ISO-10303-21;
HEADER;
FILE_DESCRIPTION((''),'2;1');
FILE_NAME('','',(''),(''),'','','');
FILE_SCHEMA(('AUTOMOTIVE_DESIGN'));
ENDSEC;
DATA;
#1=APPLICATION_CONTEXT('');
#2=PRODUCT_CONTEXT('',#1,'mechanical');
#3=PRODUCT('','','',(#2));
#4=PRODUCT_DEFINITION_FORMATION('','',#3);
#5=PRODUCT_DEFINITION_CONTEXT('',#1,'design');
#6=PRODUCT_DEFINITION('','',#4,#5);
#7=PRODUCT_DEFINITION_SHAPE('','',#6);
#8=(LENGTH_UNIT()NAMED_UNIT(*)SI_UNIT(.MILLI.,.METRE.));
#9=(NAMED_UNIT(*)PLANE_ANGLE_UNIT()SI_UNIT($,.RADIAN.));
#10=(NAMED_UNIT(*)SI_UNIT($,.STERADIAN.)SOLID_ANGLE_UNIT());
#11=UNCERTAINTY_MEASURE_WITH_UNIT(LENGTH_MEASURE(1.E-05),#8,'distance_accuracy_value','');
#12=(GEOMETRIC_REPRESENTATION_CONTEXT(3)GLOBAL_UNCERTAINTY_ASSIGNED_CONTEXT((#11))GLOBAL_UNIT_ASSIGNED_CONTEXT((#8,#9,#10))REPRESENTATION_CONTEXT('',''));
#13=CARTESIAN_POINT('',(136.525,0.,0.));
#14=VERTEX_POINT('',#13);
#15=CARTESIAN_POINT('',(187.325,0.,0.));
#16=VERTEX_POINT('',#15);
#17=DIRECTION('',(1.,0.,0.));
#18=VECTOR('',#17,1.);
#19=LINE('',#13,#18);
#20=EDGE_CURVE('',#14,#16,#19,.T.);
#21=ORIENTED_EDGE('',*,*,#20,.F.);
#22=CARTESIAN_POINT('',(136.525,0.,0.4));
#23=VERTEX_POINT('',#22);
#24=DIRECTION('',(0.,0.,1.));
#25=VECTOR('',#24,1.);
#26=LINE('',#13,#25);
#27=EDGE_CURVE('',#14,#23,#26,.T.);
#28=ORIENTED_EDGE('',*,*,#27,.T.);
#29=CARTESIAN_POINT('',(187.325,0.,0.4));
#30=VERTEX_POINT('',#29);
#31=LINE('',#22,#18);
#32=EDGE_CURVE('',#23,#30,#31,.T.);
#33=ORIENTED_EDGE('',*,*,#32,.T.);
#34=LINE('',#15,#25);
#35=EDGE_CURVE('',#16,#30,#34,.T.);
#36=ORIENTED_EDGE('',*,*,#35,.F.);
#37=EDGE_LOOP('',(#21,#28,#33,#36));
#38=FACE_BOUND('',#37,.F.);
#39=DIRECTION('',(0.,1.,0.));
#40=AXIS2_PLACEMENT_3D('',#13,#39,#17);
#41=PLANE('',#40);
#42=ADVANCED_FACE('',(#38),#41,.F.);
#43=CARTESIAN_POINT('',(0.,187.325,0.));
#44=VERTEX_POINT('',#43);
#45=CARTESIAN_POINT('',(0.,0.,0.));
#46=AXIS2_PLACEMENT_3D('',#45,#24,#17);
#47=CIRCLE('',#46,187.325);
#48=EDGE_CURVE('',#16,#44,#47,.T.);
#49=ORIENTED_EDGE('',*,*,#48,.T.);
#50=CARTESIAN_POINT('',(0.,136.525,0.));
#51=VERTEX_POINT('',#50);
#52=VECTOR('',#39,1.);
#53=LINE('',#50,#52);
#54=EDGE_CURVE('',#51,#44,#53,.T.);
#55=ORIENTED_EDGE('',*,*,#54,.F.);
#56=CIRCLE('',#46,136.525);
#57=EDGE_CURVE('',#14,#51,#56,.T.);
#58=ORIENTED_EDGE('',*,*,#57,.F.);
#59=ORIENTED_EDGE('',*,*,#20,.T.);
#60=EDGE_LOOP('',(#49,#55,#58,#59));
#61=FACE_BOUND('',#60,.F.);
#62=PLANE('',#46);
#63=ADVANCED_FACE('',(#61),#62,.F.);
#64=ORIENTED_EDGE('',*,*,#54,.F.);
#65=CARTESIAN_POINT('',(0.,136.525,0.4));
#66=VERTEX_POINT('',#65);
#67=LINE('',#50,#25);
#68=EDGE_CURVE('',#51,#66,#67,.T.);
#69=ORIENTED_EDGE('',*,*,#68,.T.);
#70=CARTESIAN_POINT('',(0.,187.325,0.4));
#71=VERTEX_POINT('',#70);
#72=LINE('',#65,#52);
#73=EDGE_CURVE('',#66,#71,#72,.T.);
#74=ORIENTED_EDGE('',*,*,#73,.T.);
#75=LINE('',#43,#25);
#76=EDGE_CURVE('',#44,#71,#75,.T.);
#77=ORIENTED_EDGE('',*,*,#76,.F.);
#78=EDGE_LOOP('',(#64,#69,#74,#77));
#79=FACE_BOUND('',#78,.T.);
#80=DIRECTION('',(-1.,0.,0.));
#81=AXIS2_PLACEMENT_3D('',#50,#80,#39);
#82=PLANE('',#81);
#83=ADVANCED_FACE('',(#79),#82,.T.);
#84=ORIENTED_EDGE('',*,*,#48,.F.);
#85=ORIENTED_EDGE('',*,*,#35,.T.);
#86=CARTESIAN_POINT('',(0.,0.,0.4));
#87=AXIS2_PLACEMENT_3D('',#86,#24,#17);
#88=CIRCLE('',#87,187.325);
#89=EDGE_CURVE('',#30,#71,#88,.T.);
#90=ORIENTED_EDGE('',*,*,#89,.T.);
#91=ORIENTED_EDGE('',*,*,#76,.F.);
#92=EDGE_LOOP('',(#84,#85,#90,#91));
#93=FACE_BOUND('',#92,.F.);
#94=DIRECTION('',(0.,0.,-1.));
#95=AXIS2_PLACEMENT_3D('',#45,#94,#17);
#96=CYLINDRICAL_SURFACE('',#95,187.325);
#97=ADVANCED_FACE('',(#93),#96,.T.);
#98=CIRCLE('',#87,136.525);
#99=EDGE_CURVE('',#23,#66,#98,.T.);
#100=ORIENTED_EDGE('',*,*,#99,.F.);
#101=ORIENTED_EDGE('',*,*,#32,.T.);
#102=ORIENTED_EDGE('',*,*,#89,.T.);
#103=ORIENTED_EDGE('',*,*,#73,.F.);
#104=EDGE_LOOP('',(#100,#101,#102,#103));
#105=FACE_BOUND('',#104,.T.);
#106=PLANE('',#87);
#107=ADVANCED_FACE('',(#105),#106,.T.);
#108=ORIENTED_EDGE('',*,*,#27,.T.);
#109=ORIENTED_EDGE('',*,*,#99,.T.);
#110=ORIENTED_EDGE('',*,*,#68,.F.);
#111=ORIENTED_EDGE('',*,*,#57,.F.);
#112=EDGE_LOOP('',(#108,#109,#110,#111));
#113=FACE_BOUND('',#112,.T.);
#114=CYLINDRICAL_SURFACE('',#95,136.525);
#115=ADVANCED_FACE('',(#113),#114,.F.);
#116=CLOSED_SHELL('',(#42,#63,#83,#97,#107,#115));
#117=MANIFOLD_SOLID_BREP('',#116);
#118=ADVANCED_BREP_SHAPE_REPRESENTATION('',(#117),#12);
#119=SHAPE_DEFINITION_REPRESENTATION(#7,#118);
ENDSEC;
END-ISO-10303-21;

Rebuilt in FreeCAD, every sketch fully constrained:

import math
import FreeCAD as App
import Part
import Sketcher
Q = App.Units.Quantity

doc = App.newDocument("Part")
body = doc.addObject("PartDesign::Body", "Body")

sketch1 = body.newObject("Sketcher::SketchObject", "Sketch")
sketch1.AttachmentSupport = (doc.getObject("XY_Plane"), [""])
sketch1.MapMode = "FlatFace"
sketch1.addGeometry([
    Part.LineSegment(App.Vector(136.525, 0, 0), App.Vector(187.325, 0, 0)),
    Part.ArcOfCircle(Part.Circle(App.Vector(0, 0, 0), App.Vector(0, 0, 1), 187.325), math.radians(0), math.radians(90)),
    Part.LineSegment(App.Vector(0, 187.325, 0), App.Vector(0, 136.525, 0)),
    Part.ArcOfCircle(Part.Circle(App.Vector(0, 0, 0), App.Vector(0, 0, 1), 136.525), math.radians(0), math.radians(90)),
], False)
sketch1.addConstraint([
    Sketcher.Constraint("Coincident", 0, 2, 1, 1),
    Sketcher.Constraint("Coincident", 1, 2, 2, 1),
    Sketcher.Constraint("Coincident", 2, 2, 3, 2),
    Sketcher.Constraint("Coincident", 3, 1, 0, 1),
    Sketcher.Constraint("Horizontal", 0),
    Sketcher.Constraint("Vertical", 2),
    Sketcher.Constraint("Coincident", 1, 3, -1, 1),
    Sketcher.Constraint("Coincident", 3, 3, -1, 1),
    Sketcher.Constraint("PointOnObject", 0, 2, -1),
    Sketcher.Constraint("PointOnObject", 1, 2, -2),
    Sketcher.Constraint("Radius", 1, Q("7.375 in")),
    Sketcher.Constraint("Radius", 3, Q("5.375 in")),
])
pad1 = body.newObject("PartDesign::Pad", "Pad")
pad1.Profile = sketch1
pad1.Length = 0.4

doc.recompute()
